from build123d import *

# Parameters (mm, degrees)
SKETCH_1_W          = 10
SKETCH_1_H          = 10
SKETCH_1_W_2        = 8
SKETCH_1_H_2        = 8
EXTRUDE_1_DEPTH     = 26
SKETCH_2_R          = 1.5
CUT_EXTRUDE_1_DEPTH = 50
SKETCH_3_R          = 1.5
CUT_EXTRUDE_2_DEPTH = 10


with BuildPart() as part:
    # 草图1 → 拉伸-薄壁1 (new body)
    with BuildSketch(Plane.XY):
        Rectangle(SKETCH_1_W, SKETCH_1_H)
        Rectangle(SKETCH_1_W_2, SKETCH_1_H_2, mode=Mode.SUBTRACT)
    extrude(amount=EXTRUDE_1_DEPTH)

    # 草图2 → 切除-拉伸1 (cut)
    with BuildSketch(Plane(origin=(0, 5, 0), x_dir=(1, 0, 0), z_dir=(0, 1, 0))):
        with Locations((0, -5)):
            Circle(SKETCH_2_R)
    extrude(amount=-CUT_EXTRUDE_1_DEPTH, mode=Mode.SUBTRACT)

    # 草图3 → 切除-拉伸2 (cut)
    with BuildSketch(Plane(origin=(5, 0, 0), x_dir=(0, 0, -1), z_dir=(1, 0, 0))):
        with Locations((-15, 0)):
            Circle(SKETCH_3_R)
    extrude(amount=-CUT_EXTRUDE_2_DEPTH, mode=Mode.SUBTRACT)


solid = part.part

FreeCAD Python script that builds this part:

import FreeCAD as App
import Part
import Sketcher
from FreeCAD import Vector
Q = App.Units.Quantity

doc = App.newDocument("Part")
body = doc.addObject("PartDesign::Body", "Body")

sketch1 = body.newObject("Sketcher::SketchObject", "Sketch")
sketch1.AttachmentSupport = (doc.getObject("XY_Plane"), [""])
sketch1.MapMode = "FlatFace"
sketch1.addGeometry([
    Part.LineSegment(Vector(-5, 5, 0), Vector(-5, -5, 0)),
    Part.LineSegment(Vector(-5, -5, 0), Vector(5, -5, 0)),
    Part.LineSegment(Vector(5, -5, 0), Vector(5, 5, 0)),
    Part.LineSegment(Vector(5, 5, 0), Vector(-5, 5, 0)),
    Part.LineSegment(Vector(4, -4, 0), Vector(-4, -4, 0)),
    Part.LineSegment(Vector(-4, -4, 0), Vector(-4, 4, 0)),
    Part.LineSegment(Vector(-4, 4, 0), Vector(4, 4, 0)),
    Part.LineSegment(Vector(4, 4, 0), Vector(4, -4, 0)),
], False)
sketch1.addConstraint([
    Sketcher.Constraint("Coincident", 0, 2, 1, 1),
    Sketcher.Constraint("Coincident", 1, 2, 2, 1),
    Sketcher.Constraint("Coincident", 2, 2, 3, 1),
    Sketcher.Constraint("Coincident", 3, 2, 0, 1),
    Sketcher.Constraint("Coincident", 4, 2, 5, 1),
    Sketcher.Constraint("Coincident", 5, 2, 6, 1),
    Sketcher.Constraint("Coincident", 6, 2, 7, 1),
    Sketcher.Constraint("Coincident", 7, 2, 4, 1),
    Sketcher.Constraint("Vertical", 0),
    Sketcher.Constraint("Horizontal", 1),
    Sketcher.Constraint("Vertical", 2),
    Sketcher.Constraint("Horizontal", 3),
    Sketcher.Constraint("Horizontal", 4),
    Sketcher.Constraint("Vertical", 5),
    Sketcher.Constraint("Horizontal", 6),
    Sketcher.Constraint("Vertical", 7),
    Sketcher.Constraint("Symmetric", 0, 2, 2, 2, -1, 1),
    Sketcher.Constraint("Symmetric", 4, 2, 6, 2, -1, 1),
    Sketcher.Constraint("Equal", 3, 0),
    Sketcher.Constraint("Equal", 6, 5),
    Sketcher.Constraint("DistanceX", 1, 1, 1, 2, Q("10 mm")),
    Sketcher.Constraint("DistanceX", 4, 2, 4, 1, Q("8 mm")),
])
pad1 = body.newObject("PartDesign::Pad", "Pad")
pad1.Profile = sketch1
pad1.Length = 26

sketch2 = body.newObject("Sketcher::SketchObject", "Sketch001")
sketch2.AttachmentSupport = (doc.getObject("XZ_Plane"), [""])
sketch2.MapMode = "FlatFace"
sketch2.AttachmentOffset = App.Placement(Vector(0, 0, -5), App.Rotation())
sketch2.addGeometry(Part.Circle(Vector(0, 5, 0), Vector(0, 0, 1), 1.5), False)
sketch2.addConstraint([
    Sketcher.Constraint("PointOnObject", 0, 3, -2),
    Sketcher.Constraint("Diameter", 0, Q("3 mm")),
    Sketcher.Constraint("DistanceY", -1, 1, 0, 3, Q("5 mm")),
])
pocket1 = body.newObject("PartDesign::Pocket", "Pocket")
pocket1.Profile = sketch2
pocket1.Length = 50
pocket1.Reversed = True

sketch3 = body.newObject("Sketcher::SketchObject", "Sketch002")
sketch3.AttachmentSupport = (doc.getObject("YZ_Plane"), [""])
sketch3.MapMode = "FlatFace"
sketch3.AttachmentOffset = App.Placement(Vector(0, 0, 5), App.Rotation())
sketch3.addGeometry(Part.Circle(Vector(0, 15, 0), Vector(0, 0, 1), 1.5), False)
sketch3.addConstraint([
    Sketcher.Constraint("PointOnObject", 0, 3, -2),
    Sketcher.Constraint("Diameter", 0, Q("3 mm")),
    Sketcher.Constraint("DistanceY", -1, 1, 0, 3, Q("15 mm")),
])
pocket2 = body.newObject("PartDesign::Pocket", "Pocket001")
pocket2.Profile = sketch3
pocket2.Length = 10

doc.recompute()
